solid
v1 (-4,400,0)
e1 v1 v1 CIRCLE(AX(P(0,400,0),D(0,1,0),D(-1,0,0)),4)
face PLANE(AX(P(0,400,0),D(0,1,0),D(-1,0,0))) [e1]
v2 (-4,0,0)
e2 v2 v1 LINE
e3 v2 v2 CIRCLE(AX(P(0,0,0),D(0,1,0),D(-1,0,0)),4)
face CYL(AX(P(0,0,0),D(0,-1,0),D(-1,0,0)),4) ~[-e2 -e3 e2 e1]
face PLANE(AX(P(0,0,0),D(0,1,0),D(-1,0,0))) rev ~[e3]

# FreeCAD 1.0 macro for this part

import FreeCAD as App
import Part
import Sketcher
Q = App.Units.Quantity

doc = App.newDocument("Part")
params = doc.addObject("Spreadsheet::Sheet", "Params")
for row, (alias, value) in enumerate([
    ("sketch1_diameter", "8 mm"),
    ("pad1_length", "400 mm"),
], start=1):
    params.set(f"A{row}", alias)
    params.set(f"B{row}", "=" + value)
    params.setAlias(f"B{row}", alias)

body = doc.addObject("PartDesign::Body", "Body")

sketch1 = body.newObject("Sketcher::SketchObject", "Sketch")
sketch1.AttachmentSupport = (doc.getObject("XZ_Plane"), [""])
sketch1.MapMode = "FlatFace"
sketch1.addGeometry(Part.Circle(App.Vector(0, 0, 0), App.Vector(0, 0, 1), 4), False)
sketch1.addConstraint(Sketcher.Constraint("Coincident", 0, 3, -1, 1))
sketch1.addConstraint(Sketcher.Constraint("Diameter", 0, Q("8 mm")))
sketch1.setExpression("Constraints[1]", "Params.sketch1_diameter")
pad1 = body.newObject("PartDesign::Pad", "Pad")
pad1.Profile = sketch1
pad1.setExpression("Length", "Params.pad1_length")
pad1.Reversed = True

doc.recompute()
